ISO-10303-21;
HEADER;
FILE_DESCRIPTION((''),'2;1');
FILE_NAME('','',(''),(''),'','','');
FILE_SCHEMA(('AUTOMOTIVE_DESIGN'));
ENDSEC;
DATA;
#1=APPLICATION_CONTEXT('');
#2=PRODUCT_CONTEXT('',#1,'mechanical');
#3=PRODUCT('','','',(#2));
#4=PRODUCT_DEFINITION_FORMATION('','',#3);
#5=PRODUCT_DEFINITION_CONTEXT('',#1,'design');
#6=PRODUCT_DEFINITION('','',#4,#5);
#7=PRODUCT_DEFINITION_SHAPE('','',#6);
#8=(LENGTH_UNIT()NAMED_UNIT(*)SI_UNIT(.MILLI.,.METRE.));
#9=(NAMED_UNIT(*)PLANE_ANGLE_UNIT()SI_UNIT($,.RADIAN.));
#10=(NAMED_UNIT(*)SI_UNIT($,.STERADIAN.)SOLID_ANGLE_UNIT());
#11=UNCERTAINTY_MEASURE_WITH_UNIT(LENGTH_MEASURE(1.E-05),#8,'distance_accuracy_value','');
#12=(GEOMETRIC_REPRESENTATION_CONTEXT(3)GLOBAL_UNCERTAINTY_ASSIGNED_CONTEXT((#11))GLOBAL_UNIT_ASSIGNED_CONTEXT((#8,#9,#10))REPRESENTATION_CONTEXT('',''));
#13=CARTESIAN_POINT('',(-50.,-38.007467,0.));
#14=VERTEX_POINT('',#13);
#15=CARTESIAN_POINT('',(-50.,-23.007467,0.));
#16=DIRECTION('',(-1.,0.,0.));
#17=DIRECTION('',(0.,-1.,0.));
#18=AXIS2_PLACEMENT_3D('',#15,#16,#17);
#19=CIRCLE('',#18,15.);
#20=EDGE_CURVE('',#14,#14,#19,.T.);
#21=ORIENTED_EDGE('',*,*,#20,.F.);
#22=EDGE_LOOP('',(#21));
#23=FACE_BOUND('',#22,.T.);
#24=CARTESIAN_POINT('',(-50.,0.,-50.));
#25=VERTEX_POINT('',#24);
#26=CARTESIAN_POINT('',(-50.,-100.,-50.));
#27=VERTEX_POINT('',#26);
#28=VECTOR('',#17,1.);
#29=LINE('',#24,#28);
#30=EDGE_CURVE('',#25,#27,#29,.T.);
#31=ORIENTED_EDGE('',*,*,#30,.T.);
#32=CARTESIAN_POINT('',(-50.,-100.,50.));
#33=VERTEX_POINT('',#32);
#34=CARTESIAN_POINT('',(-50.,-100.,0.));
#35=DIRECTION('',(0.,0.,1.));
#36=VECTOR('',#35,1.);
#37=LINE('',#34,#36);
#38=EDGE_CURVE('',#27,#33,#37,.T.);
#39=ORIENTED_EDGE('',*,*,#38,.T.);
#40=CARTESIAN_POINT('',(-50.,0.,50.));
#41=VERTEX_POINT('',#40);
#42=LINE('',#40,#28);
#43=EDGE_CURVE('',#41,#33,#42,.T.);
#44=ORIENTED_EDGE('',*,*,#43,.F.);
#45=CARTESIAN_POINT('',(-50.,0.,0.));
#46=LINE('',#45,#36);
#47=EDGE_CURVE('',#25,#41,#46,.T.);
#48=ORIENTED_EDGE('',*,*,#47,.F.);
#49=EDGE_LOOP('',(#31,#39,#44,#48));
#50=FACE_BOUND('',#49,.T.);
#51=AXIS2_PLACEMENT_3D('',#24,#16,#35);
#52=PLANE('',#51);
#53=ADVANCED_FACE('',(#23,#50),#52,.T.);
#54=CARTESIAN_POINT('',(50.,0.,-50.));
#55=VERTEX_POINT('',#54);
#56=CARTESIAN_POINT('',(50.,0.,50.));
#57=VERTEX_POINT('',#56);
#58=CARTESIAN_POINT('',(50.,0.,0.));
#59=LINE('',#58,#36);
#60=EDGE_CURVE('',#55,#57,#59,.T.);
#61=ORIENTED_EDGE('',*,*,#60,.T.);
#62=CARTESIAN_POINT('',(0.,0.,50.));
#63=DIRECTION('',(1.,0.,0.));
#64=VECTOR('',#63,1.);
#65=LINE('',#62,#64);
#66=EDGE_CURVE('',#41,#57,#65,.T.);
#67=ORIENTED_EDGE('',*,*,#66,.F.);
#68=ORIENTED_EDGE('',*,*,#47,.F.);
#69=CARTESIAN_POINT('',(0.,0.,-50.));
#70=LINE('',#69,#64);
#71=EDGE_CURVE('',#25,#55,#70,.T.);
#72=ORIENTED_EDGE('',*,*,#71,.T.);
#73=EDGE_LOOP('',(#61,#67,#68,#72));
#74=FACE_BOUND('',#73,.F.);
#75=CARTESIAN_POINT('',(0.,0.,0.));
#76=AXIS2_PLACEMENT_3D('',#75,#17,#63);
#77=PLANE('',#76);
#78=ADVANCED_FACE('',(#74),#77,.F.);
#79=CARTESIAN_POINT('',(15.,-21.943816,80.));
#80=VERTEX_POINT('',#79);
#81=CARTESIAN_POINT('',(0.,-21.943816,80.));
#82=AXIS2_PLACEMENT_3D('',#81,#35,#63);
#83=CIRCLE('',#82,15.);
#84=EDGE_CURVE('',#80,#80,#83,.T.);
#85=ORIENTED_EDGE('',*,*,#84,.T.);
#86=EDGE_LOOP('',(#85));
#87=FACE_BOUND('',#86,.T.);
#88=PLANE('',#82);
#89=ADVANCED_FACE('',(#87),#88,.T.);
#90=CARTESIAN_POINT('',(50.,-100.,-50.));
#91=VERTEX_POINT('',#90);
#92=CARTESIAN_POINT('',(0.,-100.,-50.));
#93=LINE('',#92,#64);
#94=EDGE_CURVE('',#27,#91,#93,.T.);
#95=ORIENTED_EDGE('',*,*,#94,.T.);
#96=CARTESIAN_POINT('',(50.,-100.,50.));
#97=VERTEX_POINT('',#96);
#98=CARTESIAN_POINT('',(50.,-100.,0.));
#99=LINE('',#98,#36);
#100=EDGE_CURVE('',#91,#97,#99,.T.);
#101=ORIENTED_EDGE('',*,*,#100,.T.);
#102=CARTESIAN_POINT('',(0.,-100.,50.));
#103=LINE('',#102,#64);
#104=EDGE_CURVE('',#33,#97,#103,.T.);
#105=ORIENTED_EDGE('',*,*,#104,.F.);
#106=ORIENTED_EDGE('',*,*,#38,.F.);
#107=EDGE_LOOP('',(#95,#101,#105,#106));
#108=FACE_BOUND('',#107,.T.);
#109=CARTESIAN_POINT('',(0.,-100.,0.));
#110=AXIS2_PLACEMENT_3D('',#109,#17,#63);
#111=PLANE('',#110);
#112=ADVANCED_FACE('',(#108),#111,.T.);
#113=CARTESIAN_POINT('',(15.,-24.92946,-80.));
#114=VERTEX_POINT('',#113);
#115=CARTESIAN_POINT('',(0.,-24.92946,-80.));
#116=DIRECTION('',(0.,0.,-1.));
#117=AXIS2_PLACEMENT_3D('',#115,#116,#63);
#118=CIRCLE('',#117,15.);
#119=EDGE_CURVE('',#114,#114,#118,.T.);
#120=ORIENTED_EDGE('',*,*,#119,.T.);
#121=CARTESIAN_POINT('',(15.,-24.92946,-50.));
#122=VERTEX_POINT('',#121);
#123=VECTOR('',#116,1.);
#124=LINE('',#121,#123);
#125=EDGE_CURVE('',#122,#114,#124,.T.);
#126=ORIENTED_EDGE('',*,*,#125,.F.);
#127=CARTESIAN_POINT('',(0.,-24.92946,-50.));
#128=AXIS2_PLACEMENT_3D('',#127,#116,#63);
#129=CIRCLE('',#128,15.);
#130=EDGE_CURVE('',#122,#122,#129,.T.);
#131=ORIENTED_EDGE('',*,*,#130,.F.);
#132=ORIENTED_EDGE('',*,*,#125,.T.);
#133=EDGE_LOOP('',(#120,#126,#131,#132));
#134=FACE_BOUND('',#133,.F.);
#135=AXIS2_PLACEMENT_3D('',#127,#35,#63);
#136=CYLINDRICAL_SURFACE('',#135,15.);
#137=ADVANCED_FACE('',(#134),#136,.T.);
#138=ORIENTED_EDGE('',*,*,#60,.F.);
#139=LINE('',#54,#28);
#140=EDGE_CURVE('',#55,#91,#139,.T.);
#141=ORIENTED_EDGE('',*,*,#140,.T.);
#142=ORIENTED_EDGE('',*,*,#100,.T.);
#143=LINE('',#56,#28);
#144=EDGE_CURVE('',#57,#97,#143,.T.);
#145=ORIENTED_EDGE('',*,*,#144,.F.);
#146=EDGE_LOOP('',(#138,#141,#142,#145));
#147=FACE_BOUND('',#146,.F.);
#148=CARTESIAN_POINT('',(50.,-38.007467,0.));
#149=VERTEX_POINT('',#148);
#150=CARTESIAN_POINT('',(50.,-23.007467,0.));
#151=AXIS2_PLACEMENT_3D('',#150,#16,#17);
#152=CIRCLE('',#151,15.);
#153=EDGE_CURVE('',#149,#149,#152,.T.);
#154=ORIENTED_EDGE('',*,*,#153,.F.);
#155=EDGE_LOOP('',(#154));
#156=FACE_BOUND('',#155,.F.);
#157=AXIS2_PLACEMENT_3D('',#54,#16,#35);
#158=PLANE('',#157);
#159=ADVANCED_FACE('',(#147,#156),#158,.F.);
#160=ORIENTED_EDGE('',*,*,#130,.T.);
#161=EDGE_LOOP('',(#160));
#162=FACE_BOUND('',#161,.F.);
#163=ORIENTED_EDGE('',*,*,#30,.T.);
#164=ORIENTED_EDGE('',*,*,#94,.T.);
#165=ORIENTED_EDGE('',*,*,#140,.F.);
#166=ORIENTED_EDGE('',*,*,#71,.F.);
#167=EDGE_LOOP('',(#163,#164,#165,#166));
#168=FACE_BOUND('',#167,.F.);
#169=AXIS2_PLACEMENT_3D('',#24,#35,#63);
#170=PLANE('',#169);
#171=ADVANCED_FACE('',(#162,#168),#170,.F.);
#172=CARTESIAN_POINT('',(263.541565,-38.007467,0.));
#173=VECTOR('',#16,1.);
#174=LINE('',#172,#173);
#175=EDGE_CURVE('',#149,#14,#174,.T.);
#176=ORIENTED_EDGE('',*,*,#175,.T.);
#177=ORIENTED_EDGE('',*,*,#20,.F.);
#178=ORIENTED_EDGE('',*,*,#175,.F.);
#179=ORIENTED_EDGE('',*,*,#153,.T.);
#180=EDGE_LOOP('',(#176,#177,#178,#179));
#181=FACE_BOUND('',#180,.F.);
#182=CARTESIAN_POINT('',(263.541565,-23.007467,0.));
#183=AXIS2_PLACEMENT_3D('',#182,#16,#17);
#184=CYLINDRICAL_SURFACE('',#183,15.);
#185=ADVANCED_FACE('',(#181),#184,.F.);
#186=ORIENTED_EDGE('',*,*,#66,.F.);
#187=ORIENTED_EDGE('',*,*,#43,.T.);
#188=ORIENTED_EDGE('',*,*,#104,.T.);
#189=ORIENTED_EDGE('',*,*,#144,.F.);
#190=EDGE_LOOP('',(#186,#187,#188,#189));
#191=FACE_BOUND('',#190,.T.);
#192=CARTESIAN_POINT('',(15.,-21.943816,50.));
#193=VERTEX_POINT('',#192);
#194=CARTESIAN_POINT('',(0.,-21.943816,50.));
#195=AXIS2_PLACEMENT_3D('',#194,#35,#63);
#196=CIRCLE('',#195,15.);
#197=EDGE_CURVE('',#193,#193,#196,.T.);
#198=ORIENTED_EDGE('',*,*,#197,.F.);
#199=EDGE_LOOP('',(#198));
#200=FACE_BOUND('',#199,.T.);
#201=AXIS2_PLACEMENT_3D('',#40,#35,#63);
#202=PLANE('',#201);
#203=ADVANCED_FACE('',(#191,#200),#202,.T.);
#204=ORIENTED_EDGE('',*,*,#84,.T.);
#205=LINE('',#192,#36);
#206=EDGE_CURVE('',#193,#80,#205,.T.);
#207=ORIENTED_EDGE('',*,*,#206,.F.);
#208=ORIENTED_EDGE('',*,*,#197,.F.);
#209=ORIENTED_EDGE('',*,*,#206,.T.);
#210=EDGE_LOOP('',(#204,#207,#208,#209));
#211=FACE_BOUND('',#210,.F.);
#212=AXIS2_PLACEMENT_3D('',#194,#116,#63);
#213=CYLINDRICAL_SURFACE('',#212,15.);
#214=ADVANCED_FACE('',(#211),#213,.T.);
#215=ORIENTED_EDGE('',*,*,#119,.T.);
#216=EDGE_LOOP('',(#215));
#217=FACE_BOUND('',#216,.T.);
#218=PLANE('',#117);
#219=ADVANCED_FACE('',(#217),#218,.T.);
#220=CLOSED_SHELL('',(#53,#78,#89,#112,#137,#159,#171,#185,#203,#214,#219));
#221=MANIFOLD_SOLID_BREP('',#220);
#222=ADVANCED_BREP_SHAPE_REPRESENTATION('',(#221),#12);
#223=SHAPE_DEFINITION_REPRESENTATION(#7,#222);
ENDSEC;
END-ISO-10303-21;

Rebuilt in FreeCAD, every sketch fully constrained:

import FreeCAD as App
import Part
import Sketcher
Q = App.Units.Quantity


def add_polygon(sketch, points):
    """Adds a closed chain of lines whose ends are joined by coincident constraints."""
    first, n = sketch.GeometryCount, len(points)
    for a, b in zip(points, points[1:] + points[:1]):
        sketch.addGeometry(Part.LineSegment(App.Vector(*a, 0), App.Vector(*b, 0)), False)
    for i in range(n):
        sketch.addConstraint(Sketcher.Constraint("Coincident", first + i, 2, first + (i + 1) % n, 1))

doc = App.newDocument("Part")
body = doc.addObject("PartDesign::Body", "Body")

sketch1 = doc.addObject("Sketcher::SketchObject", "Sketch")
body.addObject(sketch1)
sketch1.AttachmentSupport = (doc.XZ_Plane, [""])
sketch1.MapMode = "FlatFace"
add_polygon(sketch1, [(-50, 50), (-50, -50), (50, -50), (50, 50)])
sketch1.addConstraint(Sketcher.Constraint("Vertical", 0))
sketch1.addConstraint(Sketcher.Constraint("Horizontal", 1))
sketch1.addConstraint(Sketcher.Constraint("Vertical", 2))
sketch1.addConstraint(Sketcher.Constraint("Horizontal", 3))
sketch1.addConstraint(Sketcher.Constraint("Symmetric", 0, 2, 2, 2, -1, 1))
sketch1.addConstraint(Sketcher.Constraint("Equal", 3, 0))
sketch1.addConstraint(Sketcher.Constraint("DistanceX", 1, 1, 1, 2, Q("100 mm")))
pad1 = doc.addObject("PartDesign::Pad", "Pad")
body.addObject(pad1)
pad1.Profile = sketch1
pad1.Length = 100

sketch2 = doc.addObject("Sketcher::SketchObject", "Sketch001")
body.addObject(sketch2)
sketch2.AttachmentSupport = (doc.XY_Plane, [""])
sketch2.MapMode = "FlatFace"
sketch2.AttachmentOffset = App.Placement(App.Vector(0, 0, 50), App.Rotation())
sketch2.addGeometry(Part.Circle(App.Vector(0, -22, 0), App.Vector(0, 0, 1), 15), False)
sketch2.addConstraint(Sketcher.Constraint("PointOnObject", 0, 3, -2))
sketch2.addConstraint(Sketcher.Constraint("Diameter", 0, Q("30 mm")))
sketch2.addConstraint(Sketcher.Constraint("DistanceY", 0, 3, -1, 1, Q("21.943816 mm")))
pad2 = doc.addObject("PartDesign::Pad", "Pad001")
body.addObject(pad2)
pad2.Profile = sketch2
pad2.Length = 30

sketch3 = doc.addObject("Sketcher::SketchObject", "Sketch002")
body.addObject(sketch3)
sketch3.AttachmentSupport = (doc.XY_Plane, [""])
sketch3.MapMode = "FlatFace"
sketch3.AttachmentOffset = App.Placement(App.Vector(0, 0, -50), App.Rotation())
sketch3.addGeometry(Part.Circle(App.Vector(0, -25, 0), App.Vector(0, 0, 1), 15), False)
sketch3.addConstraint(Sketcher.Constraint("PointOnObject", 0, 3, -2))
sketch3.addConstraint(Sketcher.Constraint("Diameter", 0, Q("30 mm")))
sketch3.addConstraint(Sketcher.Constraint("DistanceY", 0, 3, -1, 1, Q("24.92946 mm")))
pad3 = doc.addObject("PartDesign::Pad", "Pad002")
body.addObject(pad3)
pad3.Profile = sketch3
pad3.Length = 30
pad3.Reversed = True

sketch4 = doc.addObject("Sketcher::SketchObject", "Sketch003")
body.addObject(sketch4)
sketch4.AttachmentSupport = (doc.YZ_Plane, [""])
sketch4.MapMode = "FlatFace"
sketch4.AttachmentOffset = App.Placement(App.Vector(0, 0, 50), App.Rotation())
sketch4.addGeometry(Part.Circle(App.Vector(-23, 0, 0), App.Vector(0, 0, 1), 15), False)
sketch4.addConstraint(Sketcher.Constraint("PointOnObject", 0, 3, -1))
sketch4.addConstraint(Sketcher.Constraint("Diameter", 0, Q("30 mm")))
sketch4.addConstraint(Sketcher.Constraint("DistanceX", 0, 3, -1, 1, Q("23.007467 mm")))
doc.recompute()
hole = doc.addObject("PartDesign::Hole", "Hole")
body.addObject(hole)
hole.Profile = sketch4
hole.ThreadType = "None"
hole.Diameter = 30
hole.DepthType = "ThroughAll"

doc.recompute()
